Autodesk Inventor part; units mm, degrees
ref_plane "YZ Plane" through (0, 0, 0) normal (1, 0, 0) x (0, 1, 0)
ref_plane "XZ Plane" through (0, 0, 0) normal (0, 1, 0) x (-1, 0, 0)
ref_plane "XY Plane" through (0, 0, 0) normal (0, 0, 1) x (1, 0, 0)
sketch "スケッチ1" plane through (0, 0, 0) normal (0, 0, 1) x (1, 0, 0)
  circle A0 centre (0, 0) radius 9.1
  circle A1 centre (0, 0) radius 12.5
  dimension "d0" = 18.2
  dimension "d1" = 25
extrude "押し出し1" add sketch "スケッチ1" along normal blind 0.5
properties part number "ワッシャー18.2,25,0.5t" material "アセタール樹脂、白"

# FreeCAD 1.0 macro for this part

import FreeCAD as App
import Part
import Sketcher
Q = App.Units.Quantity

doc = App.newDocument("Part")
body = doc.addObject("PartDesign::Body", "Body")

# Sketch on XY plane
sketch1 = body.newObject("Sketcher::SketchObject", "Sketch")
sketch1.AttachmentSupport = (doc.getObject("XY_Plane"), [""])
sketch1.MapMode = "FlatFace"
sketch1.addGeometry(Part.Circle(App.Vector(0, 0, 0), App.Vector(0, 0, 1), 12), False)
sketch1.addGeometry(Part.Circle(App.Vector(0, 0, 0), App.Vector(0, 0, 1), 9), False)
sketch1.addConstraint(Sketcher.Constraint("Coincident", 0, 3, -1, 1))
sketch1.addConstraint(Sketcher.Constraint("Coincident", 1, 3, -1, 1))
sketch1.addConstraint(Sketcher.Constraint("Diameter", 0, Q("25 mm")))
sketch1.addConstraint(Sketcher.Constraint("Diameter", 1, Q("18.2 mm")))
pad1 = body.newObject("PartDesign::Pad", "Pad")
pad1.Profile = sketch1
pad1.Length = 0.5

doc.recompute()
